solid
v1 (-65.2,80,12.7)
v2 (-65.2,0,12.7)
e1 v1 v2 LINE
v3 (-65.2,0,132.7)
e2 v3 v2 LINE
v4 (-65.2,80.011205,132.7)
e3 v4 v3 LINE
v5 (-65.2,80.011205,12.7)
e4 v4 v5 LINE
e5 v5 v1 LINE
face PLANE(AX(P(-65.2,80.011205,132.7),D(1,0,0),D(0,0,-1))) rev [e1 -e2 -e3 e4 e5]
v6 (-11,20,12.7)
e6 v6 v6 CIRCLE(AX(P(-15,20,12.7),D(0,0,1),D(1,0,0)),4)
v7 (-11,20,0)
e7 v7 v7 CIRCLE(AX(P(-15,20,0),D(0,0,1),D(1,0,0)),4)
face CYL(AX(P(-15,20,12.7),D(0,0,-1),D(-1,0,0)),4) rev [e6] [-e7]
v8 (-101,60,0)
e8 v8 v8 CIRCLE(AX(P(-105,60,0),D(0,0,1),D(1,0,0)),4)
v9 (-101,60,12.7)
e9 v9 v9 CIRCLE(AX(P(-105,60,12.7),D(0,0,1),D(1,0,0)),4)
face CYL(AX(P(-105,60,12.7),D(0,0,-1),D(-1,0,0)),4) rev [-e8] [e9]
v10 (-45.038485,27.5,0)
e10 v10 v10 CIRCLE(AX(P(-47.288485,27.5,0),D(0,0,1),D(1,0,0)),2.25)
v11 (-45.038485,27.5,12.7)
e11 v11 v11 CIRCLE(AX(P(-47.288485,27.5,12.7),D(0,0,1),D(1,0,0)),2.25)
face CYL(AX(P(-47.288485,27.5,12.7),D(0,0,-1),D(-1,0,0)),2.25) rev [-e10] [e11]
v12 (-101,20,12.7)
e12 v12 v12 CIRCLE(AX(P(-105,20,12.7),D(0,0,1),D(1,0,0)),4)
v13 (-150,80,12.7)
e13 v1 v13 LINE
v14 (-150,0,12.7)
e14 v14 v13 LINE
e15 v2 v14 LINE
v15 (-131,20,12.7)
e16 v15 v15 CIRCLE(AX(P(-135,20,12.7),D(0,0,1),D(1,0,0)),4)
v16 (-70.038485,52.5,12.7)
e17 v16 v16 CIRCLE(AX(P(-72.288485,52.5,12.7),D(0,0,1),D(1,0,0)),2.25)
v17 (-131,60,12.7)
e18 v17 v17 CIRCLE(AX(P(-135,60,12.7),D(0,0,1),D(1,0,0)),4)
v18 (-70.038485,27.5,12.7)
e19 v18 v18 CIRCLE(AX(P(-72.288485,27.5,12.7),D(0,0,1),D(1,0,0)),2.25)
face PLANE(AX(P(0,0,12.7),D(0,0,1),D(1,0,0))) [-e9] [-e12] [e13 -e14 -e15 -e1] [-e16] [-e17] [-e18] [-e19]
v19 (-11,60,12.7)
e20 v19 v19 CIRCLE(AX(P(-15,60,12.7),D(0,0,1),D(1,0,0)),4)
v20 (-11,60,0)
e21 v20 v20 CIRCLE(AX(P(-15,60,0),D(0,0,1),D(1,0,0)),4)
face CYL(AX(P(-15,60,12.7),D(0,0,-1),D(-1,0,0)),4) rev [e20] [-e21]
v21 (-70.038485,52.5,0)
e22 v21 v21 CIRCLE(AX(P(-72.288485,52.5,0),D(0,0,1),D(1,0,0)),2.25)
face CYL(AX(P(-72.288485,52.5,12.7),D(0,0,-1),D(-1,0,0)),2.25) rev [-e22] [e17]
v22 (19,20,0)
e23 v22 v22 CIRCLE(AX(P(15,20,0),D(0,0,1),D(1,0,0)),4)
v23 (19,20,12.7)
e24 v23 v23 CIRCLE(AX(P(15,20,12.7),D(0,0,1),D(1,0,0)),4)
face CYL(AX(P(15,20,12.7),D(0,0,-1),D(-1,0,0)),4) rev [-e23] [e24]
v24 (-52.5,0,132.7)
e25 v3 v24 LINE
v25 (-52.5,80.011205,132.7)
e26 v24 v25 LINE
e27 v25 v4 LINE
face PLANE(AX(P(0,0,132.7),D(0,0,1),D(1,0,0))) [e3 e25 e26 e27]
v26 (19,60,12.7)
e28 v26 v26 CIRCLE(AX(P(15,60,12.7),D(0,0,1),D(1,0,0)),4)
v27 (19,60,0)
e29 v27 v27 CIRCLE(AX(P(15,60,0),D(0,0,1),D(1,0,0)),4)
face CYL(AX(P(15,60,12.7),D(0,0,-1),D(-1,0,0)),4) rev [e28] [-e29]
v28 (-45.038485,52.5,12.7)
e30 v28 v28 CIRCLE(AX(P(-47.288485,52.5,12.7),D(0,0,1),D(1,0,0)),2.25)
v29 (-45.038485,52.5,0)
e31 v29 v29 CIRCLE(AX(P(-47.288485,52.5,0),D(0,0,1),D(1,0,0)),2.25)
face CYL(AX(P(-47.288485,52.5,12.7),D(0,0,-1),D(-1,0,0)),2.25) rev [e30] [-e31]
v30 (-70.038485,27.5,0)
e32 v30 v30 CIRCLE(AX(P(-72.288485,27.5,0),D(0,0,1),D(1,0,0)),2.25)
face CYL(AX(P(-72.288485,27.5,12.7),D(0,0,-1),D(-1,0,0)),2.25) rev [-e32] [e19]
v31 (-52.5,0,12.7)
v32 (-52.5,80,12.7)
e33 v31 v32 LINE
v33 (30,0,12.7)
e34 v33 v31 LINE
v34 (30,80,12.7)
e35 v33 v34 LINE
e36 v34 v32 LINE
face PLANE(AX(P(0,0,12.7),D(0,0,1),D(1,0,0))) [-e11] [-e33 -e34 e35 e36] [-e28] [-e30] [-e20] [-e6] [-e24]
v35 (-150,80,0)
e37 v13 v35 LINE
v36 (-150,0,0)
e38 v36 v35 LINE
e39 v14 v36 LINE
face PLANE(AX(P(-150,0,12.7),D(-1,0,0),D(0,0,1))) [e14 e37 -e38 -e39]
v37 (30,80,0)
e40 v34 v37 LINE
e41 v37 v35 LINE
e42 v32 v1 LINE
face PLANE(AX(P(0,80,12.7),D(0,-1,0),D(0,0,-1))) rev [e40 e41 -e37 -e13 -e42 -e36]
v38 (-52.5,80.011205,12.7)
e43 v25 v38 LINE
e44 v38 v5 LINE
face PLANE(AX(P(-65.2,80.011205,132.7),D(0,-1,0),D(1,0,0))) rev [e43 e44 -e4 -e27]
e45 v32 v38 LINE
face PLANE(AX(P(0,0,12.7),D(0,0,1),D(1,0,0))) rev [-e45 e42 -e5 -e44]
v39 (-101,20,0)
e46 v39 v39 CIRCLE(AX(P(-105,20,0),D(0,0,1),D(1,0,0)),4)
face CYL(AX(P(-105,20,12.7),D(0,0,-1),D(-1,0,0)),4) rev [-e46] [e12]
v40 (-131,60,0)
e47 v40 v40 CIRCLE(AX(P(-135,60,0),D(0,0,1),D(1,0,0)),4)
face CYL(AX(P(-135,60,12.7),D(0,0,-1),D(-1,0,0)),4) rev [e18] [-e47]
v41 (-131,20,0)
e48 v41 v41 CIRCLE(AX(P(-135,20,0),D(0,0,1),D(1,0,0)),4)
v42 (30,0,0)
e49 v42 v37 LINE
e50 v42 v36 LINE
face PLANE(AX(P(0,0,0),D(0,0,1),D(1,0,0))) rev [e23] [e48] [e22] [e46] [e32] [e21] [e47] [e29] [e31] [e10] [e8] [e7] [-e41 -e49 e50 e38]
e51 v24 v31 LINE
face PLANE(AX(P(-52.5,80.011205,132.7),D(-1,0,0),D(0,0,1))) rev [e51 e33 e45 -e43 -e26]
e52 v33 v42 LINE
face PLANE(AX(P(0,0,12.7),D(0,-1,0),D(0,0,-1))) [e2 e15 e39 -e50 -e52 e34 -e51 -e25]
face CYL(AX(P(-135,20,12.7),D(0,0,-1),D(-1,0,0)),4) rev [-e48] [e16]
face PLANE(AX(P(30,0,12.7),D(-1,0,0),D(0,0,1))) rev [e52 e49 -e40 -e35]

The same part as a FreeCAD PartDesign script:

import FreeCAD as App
import Part
import Sketcher
Q = App.Units.Quantity


def add_polygon(sketch, points):
    """Adds a closed chain of lines whose ends are joined by coincident constraints."""
    first, n = sketch.GeometryCount, len(points)
    for a, b in zip(points, points[1:] + points[:1]):
        sketch.addGeometry(Part.LineSegment(App.Vector(*a, 0), App.Vector(*b, 0)), False)
    for i in range(n):
        sketch.addConstraint(Sketcher.Constraint("Coincident", first + i, 2, first + (i + 1) % n, 1))

doc = App.newDocument("Part")
params = doc.addObject("Spreadsheet::Sheet", "Params")
for row, (alias, value) in enumerate([
    ("sketch1_diameter", "8 mm"),
    ("sketch1_diameter2", "4.5 mm"),
    ("sketch1_width", "180 mm"),
    ("sketch1_height", "80 mm"),
    ("pad1_length", "12.7 mm"),
    ("sketch2_width", "12.7 mm"),
    ("pad2_length", "120 mm"),
], start=1):
    params.set(f"A{row}", alias)
    params.set(f"B{row}", "=" + value)
    params.setAlias(f"B{row}", alias)

body = doc.addObject("PartDesign::Body", "Body")

sketch1 = body.newObject("Sketcher::SketchObject", "Sketch")
sketch1.AttachmentSupport = (doc.getObject("XY_Plane"), [""])
sketch1.MapMode = "FlatFace"
add_polygon(sketch1, [(-150, 80), (-150, 0), (30, 0), (30, 80)])
sketch1.addGeometry(Part.Circle(App.Vector(-135, 20, 0), App.Vector(0, 0, 1), 4), False)
sketch1.addGeometry(Part.Circle(App.Vector(-105, 20, 0), App.Vector(0, 0, 1), 4), False)
sketch1.addGeometry(Part.Circle(App.Vector(-72.3, 27.5, 0), App.Vector(0, 0, 1), 2.2), False)
sketch1.addGeometry(Part.Circle(App.Vector(-47.3, 27.5, 0), App.Vector(0, 0, 1), 2.2), False)
sketch1.addGeometry(Part.Circle(App.Vector(-15, 20, 0), App.Vector(0, 0, 1), 4), False)
sketch1.addGeometry(Part.Circle(App.Vector(15, 20, 0), App.Vector(0, 0, 1), 4), False)
sketch1.addGeometry(Part.Circle(App.Vector(-135, 60, 0), App.Vector(0, 0, 1), 4), False)
sketch1.addGeometry(Part.Circle(App.Vector(-105, 60, 0), App.Vector(0, 0, 1), 4), False)
sketch1.addGeometry(Part.Circle(App.Vector(-72.3, 52.5, 0), App.Vector(0, 0, 1), 2.2), False)
sketch1.addGeometry(Part.Circle(App.Vector(-47.3, 52.5, 0), App.Vector(0, 0, 1), 2.2), False)
sketch1.addGeometry(Part.Circle(App.Vector(-15, 60, 0), App.Vector(0, 0, 1), 4), False)
sketch1.addGeometry(Part.Circle(App.Vector(15, 60, 0), App.Vector(0, 0, 1), 4), False)
sketch1.addConstraint([
    Sketcher.Constraint("Vertical", 0),
    Sketcher.Constraint("Horizontal", 1),
    Sketcher.Constraint("Vertical", 2),
    Sketcher.Constraint("Horizontal", 3),
    Sketcher.Constraint("Equal", 4, 5),
    Sketcher.Constraint("Equal", 6, 7),
    Sketcher.Constraint("Equal", 5, 8),
    Sketcher.Constraint("Equal", 8, 9),
    Sketcher.Constraint("Equal", 9, 10),
    Sketcher.Constraint("Equal", 10, 11),
    Sketcher.Constraint("Equal", 7, 12),
    Sketcher.Constraint("Equal", 12, 13),
    Sketcher.Constraint("Equal", 11, 14),
    Sketcher.Constraint("Equal", 14, 15),
    Sketcher.Constraint("Symmetric", 8, 3, 9, 3, -2),
    Sketcher.Constraint("Symmetric", 14, 3, 15, 3, -2),
    Sketcher.Constraint("PointOnObject", 0, 2, -1),
    Sketcher.Constraint("Horizontal", 4, 3, 5, 3),
    Sketcher.Constraint("Horizontal", 6, 3, 7, 3),
    Sketcher.Constraint("Horizontal", 5, 3, 8, 3),
    Sketcher.Constraint("Horizontal", 10, 3, 11, 3),
    Sketcher.Constraint("Horizontal", 12, 3, 13, 3),
    Sketcher.Constraint("Horizontal", 11, 3, 14, 3),
    Sketcher.Constraint("Vertical", 4, 3, 10, 3),
    Sketcher.Constraint("Vertical", 5, 3, 11, 3),
    Sketcher.Constraint("Vertical", 6, 3, 12, 3),
    Sketcher.Constraint("Vertical", 7, 3, 13, 3),
    Sketcher.Constraint("Vertical", 8, 3, 14, 3),
    Sketcher.Constraint("Diameter", 4, Q("8 mm")),
    Sketcher.Constraint("Diameter", 6, Q("4.5 mm")),
    Sketcher.Constraint("DistanceX", 1, 1, 1, 2, Q("180 mm")),
    Sketcher.Constraint("DistanceY", 0, 2, 0, 1, Q("80 mm")),
    Sketcher.Constraint("DistanceX", 4, 3, -1, 1, Q("135 mm")),
    Sketcher.Constraint("DistanceY", -1, 1, 4, 3, Q("20 mm")),
    Sketcher.Constraint("DistanceX", 5, 3, -1, 1, Q("105 mm")),
    Sketcher.Constraint("DistanceX", 8, 3, -1, 1, Q("15 mm")),
    Sketcher.Constraint("DistanceY", -1, 1, 10, 3, Q("60 mm")),
    Sketcher.Constraint("DistanceX", 0, 2, -1, 1, Q("150 mm")),
    Sketcher.Constraint("DistanceX", 6, 3, 7, 3, Q("25 mm")),
    Sketcher.Constraint("DistanceY", 6, 3, 12, 3, Q("25 mm")),
    Sketcher.Constraint("DistanceY", -1, 1, 6, 3, Q("27.5 mm")),
    Sketcher.Constraint("DistanceX", 6, 3, -1, 1, Q("72.288485 mm")),
])
sketch1.setExpression("Constraints[32]", "Params.sketch1_diameter")
sketch1.setExpression("Constraints[33]", "Params.sketch1_diameter2")
sketch1.setExpression("Constraints[34]", "Params.sketch1_width")
sketch1.setExpression("Constraints[35]", "Params.sketch1_height")
pad1 = body.newObject("PartDesign::Pad", "Pad")
pad1.Profile = sketch1
pad1.setExpression("Length", "Params.pad1_length")

sketch2 = body.newObject("Sketcher::SketchObject", "Sketch001")
sketch2.AttachmentSupport = (doc.getObject("XY_Plane"), [""])
sketch2.MapMode = "FlatFace"
sketch2.AttachmentOffset = App.Placement(App.Vector(0, 0, 12.7), App.Rotation())
add_polygon(sketch2, [(-65, 80), (-65, 0), (-52, 0), (-52, 80)])
sketch2.addConstraint([
    Sketcher.Constraint("Vertical", 0),
    Sketcher.Constraint("Horizontal", 1),
    Sketcher.Constraint("Vertical", 2),
    Sketcher.Constraint("Horizontal", 3),
    Sketcher.Constraint("PointOnObject", 0, 2, -1),
    Sketcher.Constraint("DistanceX", 1, 1, 1, 2, Q("12.7 mm")),
    Sketcher.Constraint("DistanceX", 0, 2, -1, 1, Q("65.2 mm")),
    Sketcher.Constraint("DistanceY", 0, 2, 0, 1, Q("80.011205 mm")),
])
sketch2.setExpression("Constraints[9]", "Params.sketch2_width")
pad2 = body.newObject("PartDesign::Pad", "Pad001")
pad2.Profile = sketch2
pad2.setExpression("Length", "Params.pad2_length")

doc.recompute()
